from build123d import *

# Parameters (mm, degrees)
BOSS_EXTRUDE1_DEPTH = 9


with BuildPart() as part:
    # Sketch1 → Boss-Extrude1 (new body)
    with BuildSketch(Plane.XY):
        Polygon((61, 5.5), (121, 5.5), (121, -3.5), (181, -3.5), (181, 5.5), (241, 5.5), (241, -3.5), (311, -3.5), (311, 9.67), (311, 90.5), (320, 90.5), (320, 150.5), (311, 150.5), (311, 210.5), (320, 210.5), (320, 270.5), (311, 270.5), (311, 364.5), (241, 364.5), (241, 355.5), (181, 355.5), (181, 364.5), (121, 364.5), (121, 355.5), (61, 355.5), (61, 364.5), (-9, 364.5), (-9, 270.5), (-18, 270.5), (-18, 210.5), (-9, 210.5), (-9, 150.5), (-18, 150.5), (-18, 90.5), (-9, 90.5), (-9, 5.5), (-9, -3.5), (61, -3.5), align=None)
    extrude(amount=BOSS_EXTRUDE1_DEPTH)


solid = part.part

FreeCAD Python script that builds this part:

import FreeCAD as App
import Part
import Sketcher

V = App.Vector
Q = App.Units.Quantity


def add_polygon(sketch, points):
    """Adds a closed chain of lines whose ends are joined by coincident constraints."""
    first, n = sketch.GeometryCount, len(points)
    for a, b in zip(points, points[1:] + points[:1]):
        sketch.addGeometry(Part.LineSegment(App.Vector(*a, 0), App.Vector(*b, 0)), False)
    for i in range(n):
        sketch.addConstraint(Sketcher.Constraint("Coincident", first + i, 2, first + (i + 1) % n, 1))

doc = App.newDocument("Part")
params = doc.addObject("Spreadsheet::Sheet", "Params")
for row, (alias, value) in enumerate([
    ("sketch1_width", "60 mm"),
    ("sketch1_width2", "70 mm"),
    ("sketch1_width3", "9 mm"),
    ("sketch1_height", "94 mm"),
    ("pad1_length", "9 mm"),
], start=1):
    params.set(f"A{row}", alias)
    params.set(f"B{row}", "=" + value)
    params.setAlias(f"B{row}", alias)

body = doc.addObject("PartDesign::Body", "Body")

# Sketch on XY plane
sketch1 = body.newObject("Sketcher::SketchObject", "Sketch")
sketch1.AttachmentSupport = (doc.getObject("XY_Plane"), [""])
sketch1.MapMode = "FlatFace"
add_polygon(sketch1, [(61, 6), (121, 6), (121, -4), (181, -4), (181, 6), (241, 6), (241, -4), (311, -4), (311, 90), (320, 90), (320, 150), (311, 150), (311, 210), (320, 210), (320, 270), (311, 270), (311, 364), (241, 364), (241, 356), (181, 356), (181, 364), (121, 364), (121, 356), (61, 356), (61, 364), (-9, 364), (-9, 270), (-18, 270), (-18, 210), (-9, 210), (-9, 150), (-18, 150), (-18, 90), (-9, 90), (-9, -4), (61, -4)])  # lines 0-35
sketch1.addConstraint([
    Sketcher.Constraint("Horizontal", 0),
    Sketcher.Constraint("Vertical", 1),
    Sketcher.Constraint("Horizontal", 2),
    Sketcher.Constraint("Vertical", 3),
    Sketcher.Constraint("Horizontal", 4),
    Sketcher.Constraint("Vertical", 5),
    Sketcher.Constraint("Horizontal", 6),
    Sketcher.Constraint("Vertical", 7),
    Sketcher.Constraint("Horizontal", 8),
    Sketcher.Constraint("Vertical", 9),
    Sketcher.Constraint("Horizontal", 10),
    Sketcher.Constraint("Vertical", 11),
    Sketcher.Constraint("Horizontal", 12),
    Sketcher.Constraint("Vertical", 13),
    Sketcher.Constraint("Horizontal", 14),
    Sketcher.Constraint("Vertical", 15),
    Sketcher.Constraint("Horizontal", 16),
    Sketcher.Constraint("Vertical", 17),
    Sketcher.Constraint("Horizontal", 18),
    Sketcher.Constraint("Vertical", 19),
    Sketcher.Constraint("Horizontal", 20),
    Sketcher.Constraint("Vertical", 21),
    Sketcher.Constraint("Horizontal", 22),
    Sketcher.Constraint("Vertical", 23),
    Sketcher.Constraint("Horizontal", 24),
    Sketcher.Constraint("Vertical", 25),
    Sketcher.Constraint("Horizontal", 26),
    Sketcher.Constraint("Vertical", 27),
    Sketcher.Constraint("Horizontal", 28),
    Sketcher.Constraint("Vertical", 29),
    Sketcher.Constraint("Horizontal", 30),
    Sketcher.Constraint("Vertical", 31),
    Sketcher.Constraint("Horizontal", 32),
    Sketcher.Constraint("Vertical", 33),
    Sketcher.Constraint("Horizontal", 34),
    Sketcher.Constraint("Vertical", 35),
    Sketcher.Constraint("Horizontal", 0, 2, 3, 2),
    Sketcher.Constraint("Horizontal", 2, 2, 5, 2),
    Sketcher.Constraint("Horizontal", 16, 2, 19, 2),
    Sketcher.Constraint("Horizontal", 18, 2, 21, 2),
    Sketcher.Constraint("Horizontal", 20, 2, 23, 2),
    Sketcher.Constraint("Horizontal", 14, 2, 25, 2),
    Sketcher.Constraint("Horizontal", 12, 2, 27, 2),
    Sketcher.Constraint("Horizontal", 10, 2, 29, 2),
    Sketcher.Constraint("Horizontal", 8, 2, 31, 2),
    Sketcher.Constraint("Horizontal", 6, 2, 33, 2),
    Sketcher.Constraint("Vertical", 7, 2, 10, 2),
    Sketcher.Constraint("Vertical", 9, 2, 12, 2),
    Sketcher.Constraint("Vertical", 11, 2, 14, 2),
    Sketcher.Constraint("Vertical", 5, 2, 16, 2),
    Sketcher.Constraint("Vertical", 3, 2, 18, 2),
    Sketcher.Constraint("Vertical", 1, 2, 20, 2),
    Sketcher.Constraint("Vertical", 25, 2, 28, 2),
    Sketcher.Constraint("Vertical", 27, 2, 30, 2),
    Sketcher.Constraint("Vertical", 29, 2, 32, 2),
    Sketcher.Constraint("Vertical", 23, 2, 34, 2),
    Sketcher.Constraint("Equal", 0, 2),
    Sketcher.Constraint("Equal", 2, 4),
    Sketcher.Constraint("Equal", 16, 24),
    Sketcher.Constraint("Equal", 14, 26),
    Sketcher.Constraint("Equal", 32, 1),
    Sketcher.Constraint("Equal", 22, 9),
    Sketcher.Constraint("Equal", 9, 11),
    Sketcher.Constraint("Equal", 11, 13),
    Sketcher.Constraint("Equal", 7, 15),
    Sketcher.Constraint("Equal", 5, 17),
    Sketcher.Constraint("DistanceX", 0, 1, 0, 2, Q("60 mm")),
    Sketcher.Constraint("DistanceX", 6, 1, 6, 2, Q("70 mm")),
    Sketcher.Constraint("DistanceX", 8, 1, 8, 2, Q("9 mm")),
    Sketcher.Constraint("DistanceY", 7, 1, 7, 2, Q("94 mm")),
    Sketcher.Constraint("DistanceX", -1, 1, 0, 2, Q("121 mm")),
    Sketcher.Constraint("DistanceY", -1, 1, 0, 2, Q("5.5 mm")),
])
sketch1.setExpression("Constraints[102]", "Params.sketch1_width")
sketch1.setExpression("Constraints[103]", "Params.sketch1_width2")
sketch1.setExpression("Constraints[104]", "Params.sketch1_width3")
sketch1.setExpression("Constraints[105]", "Params.sketch1_height")
pad1 = body.newObject("PartDesign::Pad", "Pad")
pad1.Profile = sketch1
pad1.setExpression("Length", "Params.pad1_length")

doc.recompute()
